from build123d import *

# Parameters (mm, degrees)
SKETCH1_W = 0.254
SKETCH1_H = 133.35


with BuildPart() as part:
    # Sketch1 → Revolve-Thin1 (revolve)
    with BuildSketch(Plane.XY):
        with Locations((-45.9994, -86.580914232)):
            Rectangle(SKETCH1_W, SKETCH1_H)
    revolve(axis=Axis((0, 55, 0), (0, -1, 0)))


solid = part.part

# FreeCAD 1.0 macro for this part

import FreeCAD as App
import Part
import Sketcher
Q = App.Units.Quantity


def add_polygon(sketch, points):
    """Adds a closed chain of lines whose ends are joined by coincident constraints."""
    first, n = sketch.GeometryCount, len(points)
    for a, b in zip(points, points[1:] + points[:1]):
        sketch.addGeometry(Part.LineSegment(App.Vector(*a, 0), App.Vector(*b, 0)), False)
    for i in range(n):
        sketch.addConstraint(Sketcher.Constraint("Coincident", first + i, 2, first + (i + 1) % n, 1))

doc = App.newDocument("Part")
params = doc.addObject("Spreadsheet::Sheet", "Params")
for row, (alias, value) in enumerate([
    ("sketch1_width", "0.01 in"),
    ("sketch1_height", "5.25 in"),
    ("revolution_angle", "360 deg"),
], start=1):
    params.set(f"A{row}", alias)
    params.set(f"B{row}", "=" + value)
    params.setAlias(f"B{row}", alias)

body = doc.addObject("PartDesign::Body", "Body")

# Sketch on XY plane
sketch1 = body.newObject("Sketcher::SketchObject", "Sketch")
sketch1.AttachmentSupport = (doc.getObject("XY_Plane"), [""])
sketch1.MapMode = "FlatFace"
add_polygon(sketch1, [(-46.13, -19.91), (-46.13, -153.26), (-45.87, -153.26), (-45.87, -19.91)])  # lines 0-3
sketch1.addConstraint([
    Sketcher.Constraint("Vertical", 0),
    Sketcher.Constraint("Horizontal", 1),
    Sketcher.Constraint("Vertical", 2),
    Sketcher.Constraint("Horizontal", 3),
    Sketcher.Constraint("DistanceX", 1, 1, 1, 2, Q("0.01 in")),
    Sketcher.Constraint("DistanceY", 0, 2, 0, 1, Q("5.25 in")),
    Sketcher.Constraint("DistanceX", 0, 2, -1, 1, Q("1.816 in")),
    Sketcher.Constraint("DistanceY", 0, 2, -1, 1, 153.255914),
])
sketch1.setExpression("Constraints[8]", "Params.sketch1_width")
sketch1.setExpression("Constraints[9]", "Params.sketch1_height")
revolution = body.newObject("PartDesign::Revolution", "Revolution")
revolution.Profile = sketch1
revolution.ReferenceAxis = (sketch1, ["V_Axis"])
revolution.setExpression("Angle", "Params.revolution_angle")

doc.recompute()
